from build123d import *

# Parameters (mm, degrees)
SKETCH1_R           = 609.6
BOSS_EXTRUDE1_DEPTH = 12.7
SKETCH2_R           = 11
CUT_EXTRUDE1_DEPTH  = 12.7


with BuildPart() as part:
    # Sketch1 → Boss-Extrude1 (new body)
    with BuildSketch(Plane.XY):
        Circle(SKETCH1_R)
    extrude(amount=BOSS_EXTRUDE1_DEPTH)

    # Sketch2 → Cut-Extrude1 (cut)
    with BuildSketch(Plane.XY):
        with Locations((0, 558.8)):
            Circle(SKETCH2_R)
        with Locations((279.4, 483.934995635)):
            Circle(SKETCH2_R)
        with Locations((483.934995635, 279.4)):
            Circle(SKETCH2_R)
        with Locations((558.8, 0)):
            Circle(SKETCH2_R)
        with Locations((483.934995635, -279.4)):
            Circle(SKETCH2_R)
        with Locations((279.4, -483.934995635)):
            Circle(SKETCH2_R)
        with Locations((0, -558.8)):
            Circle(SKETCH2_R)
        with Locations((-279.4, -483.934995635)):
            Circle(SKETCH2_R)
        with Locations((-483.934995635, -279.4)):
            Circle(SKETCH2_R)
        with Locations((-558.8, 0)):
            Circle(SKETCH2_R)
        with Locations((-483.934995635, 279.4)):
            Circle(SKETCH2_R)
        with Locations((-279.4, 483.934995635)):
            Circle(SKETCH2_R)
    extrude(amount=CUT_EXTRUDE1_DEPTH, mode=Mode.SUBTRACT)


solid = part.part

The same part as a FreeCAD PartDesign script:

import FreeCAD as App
import Part
import Sketcher
from FreeCAD import Vector
Q = App.Units.Quantity

doc = App.newDocument("Part")
params = doc.addObject("Spreadsheet::Sheet", "Params")
for row, (alias, value) in enumerate([
    ("sketch1_diameter", "48 in"),
    ("pad1_length", "0.5 in"),
    ("pocket1_length", "0.5 in"),
], start=1):
    params.set(f"A{row}", alias)
    params.set(f"B{row}", "=" + value)
    params.setAlias(f"B{row}", alias)

body = doc.addObject("PartDesign::Body", "Body")

# Sketch on XY plane
sketch1 = body.newObject("Sketcher::SketchObject", "Sketch")
sketch1.AttachmentSupport = (doc.getObject("XY_Plane"), [""])
sketch1.MapMode = "FlatFace"
sketch1.addGeometry(Part.Circle(Vector(0, 0, 0), Vector(0, 0, 1), 610), False)
sketch1.addConstraint([
    Sketcher.Constraint("Coincident", 0, 3, -1, 1),
    Sketcher.Constraint("Diameter", 0, Q("48 in")),
])
sketch1.setExpression("Constraints[1]", "Params.sketch1_diameter")
pad1 = body.newObject("PartDesign::Pad", "Pad")
pad1.Profile = sketch1
pad1.setExpression("Length", "Params.pad1_length")

# Sketch on XY plane
sketch2 = body.newObject("Sketcher::SketchObject", "Sketch001")
sketch2.AttachmentSupport = (doc.getObject("XY_Plane"), [""])
sketch2.MapMode = "FlatFace"
sketch2.addGeometry([
    Part.Circle(Vector(0, 559, 0), Vector(0, 0, 1), 11),  # 0
    Part.Circle(Vector(279, 484, 0), Vector(0, 0, 1), 11),  # 1
    Part.Circle(Vector(484, 279, 0), Vector(0, 0, 1), 11),  # 2
    Part.Circle(Vector(559, 0, 0), Vector(0, 0, 1), 11),  # 3
    Part.Circle(Vector(484, -279, 0), Vector(0, 0, 1), 11),  # 4
    Part.Circle(Vector(279, -484, 0), Vector(0, 0, 1), 11),  # 5
    Part.Circle(Vector(0, -559, 0), Vector(0, 0, 1), 11),  # 6
    Part.Circle(Vector(-279, -484, 0), Vector(0, 0, 1), 11),  # 7
    Part.Circle(Vector(-484, -279, 0), Vector(0, 0, 1), 11),  # 8
    Part.Circle(Vector(-559, 0, 0), Vector(0, 0, 1), 11),  # 9
    Part.Circle(Vector(-484, 279, 0), Vector(0, 0, 1), 11),  # 10
    Part.Circle(Vector(-279, 484, 0), Vector(0, 0, 1), 11),  # 11
], False)
sketch2.addConstraint([
    Sketcher.Constraint("Equal", 0, 1),
    Sketcher.Constraint("Equal", 1, 2),
    Sketcher.Constraint("Equal", 2, 3),
    Sketcher.Constraint("Equal", 3, 4),
    Sketcher.Constraint("Equal", 4, 5),
    Sketcher.Constraint("Equal", 5, 6),
    Sketcher.Constraint("Equal", 6, 7),
    Sketcher.Constraint("Equal", 7, 8),
    Sketcher.Constraint("Equal", 8, 9),
    Sketcher.Constraint("Equal", 9, 10),
    Sketcher.Constraint("Equal", 10, 11),
    Sketcher.Constraint("Symmetric", 0, 3, 6, 3, -1, 1),
    Sketcher.Constraint("Symmetric", 1, 3, 7, 3, -1, 1),
    Sketcher.Constraint("Symmetric", 2, 3, 8, 3, -1, 1),
    Sketcher.Constraint("Symmetric", 3, 3, 9, 3, -1, 1),
    Sketcher.Constraint("Symmetric", 4, 3, 10, 3, -1, 1),
    Sketcher.Constraint("Symmetric", 5, 3, 11, 3, -1, 1),
    Sketcher.Constraint("Symmetric", 5, 3, 7, 3, -2),
    Sketcher.Constraint("Symmetric", 4, 3, 8, 3, -2),
    Sketcher.Constraint("PointOnObject", 0, 3, -2),
    Sketcher.Constraint("PointOnObject", 3, 3, -1),
    Sketcher.Constraint("DistanceY", -1, 1, 0, 3, Q("22 in")),
    Sketcher.Constraint("DistanceX", -1, 1, 1, 3, Q("11 in")),
    Sketcher.Constraint("DistanceY", -1, 1, 2, 3, Q("11 in")),
    Sketcher.Constraint("DistanceX", -1, 1, 3, 3, Q("22 in")),
    Sketcher.Constraint("Diameter", 0, 22.0),
    Sketcher.Constraint("DistanceY", 5, 3, 1, 3, 967.869991),
    Sketcher.Constraint("DistanceX", 8, 3, 4, 3, 967.869991),
])
pocket1 = body.newObject("PartDesign::Pocket", "Pocket")
pocket1.Profile = sketch2
pocket1.setExpression("Length", "Params.pocket1_length")
pocket1.Reversed = True

doc.recompute()
